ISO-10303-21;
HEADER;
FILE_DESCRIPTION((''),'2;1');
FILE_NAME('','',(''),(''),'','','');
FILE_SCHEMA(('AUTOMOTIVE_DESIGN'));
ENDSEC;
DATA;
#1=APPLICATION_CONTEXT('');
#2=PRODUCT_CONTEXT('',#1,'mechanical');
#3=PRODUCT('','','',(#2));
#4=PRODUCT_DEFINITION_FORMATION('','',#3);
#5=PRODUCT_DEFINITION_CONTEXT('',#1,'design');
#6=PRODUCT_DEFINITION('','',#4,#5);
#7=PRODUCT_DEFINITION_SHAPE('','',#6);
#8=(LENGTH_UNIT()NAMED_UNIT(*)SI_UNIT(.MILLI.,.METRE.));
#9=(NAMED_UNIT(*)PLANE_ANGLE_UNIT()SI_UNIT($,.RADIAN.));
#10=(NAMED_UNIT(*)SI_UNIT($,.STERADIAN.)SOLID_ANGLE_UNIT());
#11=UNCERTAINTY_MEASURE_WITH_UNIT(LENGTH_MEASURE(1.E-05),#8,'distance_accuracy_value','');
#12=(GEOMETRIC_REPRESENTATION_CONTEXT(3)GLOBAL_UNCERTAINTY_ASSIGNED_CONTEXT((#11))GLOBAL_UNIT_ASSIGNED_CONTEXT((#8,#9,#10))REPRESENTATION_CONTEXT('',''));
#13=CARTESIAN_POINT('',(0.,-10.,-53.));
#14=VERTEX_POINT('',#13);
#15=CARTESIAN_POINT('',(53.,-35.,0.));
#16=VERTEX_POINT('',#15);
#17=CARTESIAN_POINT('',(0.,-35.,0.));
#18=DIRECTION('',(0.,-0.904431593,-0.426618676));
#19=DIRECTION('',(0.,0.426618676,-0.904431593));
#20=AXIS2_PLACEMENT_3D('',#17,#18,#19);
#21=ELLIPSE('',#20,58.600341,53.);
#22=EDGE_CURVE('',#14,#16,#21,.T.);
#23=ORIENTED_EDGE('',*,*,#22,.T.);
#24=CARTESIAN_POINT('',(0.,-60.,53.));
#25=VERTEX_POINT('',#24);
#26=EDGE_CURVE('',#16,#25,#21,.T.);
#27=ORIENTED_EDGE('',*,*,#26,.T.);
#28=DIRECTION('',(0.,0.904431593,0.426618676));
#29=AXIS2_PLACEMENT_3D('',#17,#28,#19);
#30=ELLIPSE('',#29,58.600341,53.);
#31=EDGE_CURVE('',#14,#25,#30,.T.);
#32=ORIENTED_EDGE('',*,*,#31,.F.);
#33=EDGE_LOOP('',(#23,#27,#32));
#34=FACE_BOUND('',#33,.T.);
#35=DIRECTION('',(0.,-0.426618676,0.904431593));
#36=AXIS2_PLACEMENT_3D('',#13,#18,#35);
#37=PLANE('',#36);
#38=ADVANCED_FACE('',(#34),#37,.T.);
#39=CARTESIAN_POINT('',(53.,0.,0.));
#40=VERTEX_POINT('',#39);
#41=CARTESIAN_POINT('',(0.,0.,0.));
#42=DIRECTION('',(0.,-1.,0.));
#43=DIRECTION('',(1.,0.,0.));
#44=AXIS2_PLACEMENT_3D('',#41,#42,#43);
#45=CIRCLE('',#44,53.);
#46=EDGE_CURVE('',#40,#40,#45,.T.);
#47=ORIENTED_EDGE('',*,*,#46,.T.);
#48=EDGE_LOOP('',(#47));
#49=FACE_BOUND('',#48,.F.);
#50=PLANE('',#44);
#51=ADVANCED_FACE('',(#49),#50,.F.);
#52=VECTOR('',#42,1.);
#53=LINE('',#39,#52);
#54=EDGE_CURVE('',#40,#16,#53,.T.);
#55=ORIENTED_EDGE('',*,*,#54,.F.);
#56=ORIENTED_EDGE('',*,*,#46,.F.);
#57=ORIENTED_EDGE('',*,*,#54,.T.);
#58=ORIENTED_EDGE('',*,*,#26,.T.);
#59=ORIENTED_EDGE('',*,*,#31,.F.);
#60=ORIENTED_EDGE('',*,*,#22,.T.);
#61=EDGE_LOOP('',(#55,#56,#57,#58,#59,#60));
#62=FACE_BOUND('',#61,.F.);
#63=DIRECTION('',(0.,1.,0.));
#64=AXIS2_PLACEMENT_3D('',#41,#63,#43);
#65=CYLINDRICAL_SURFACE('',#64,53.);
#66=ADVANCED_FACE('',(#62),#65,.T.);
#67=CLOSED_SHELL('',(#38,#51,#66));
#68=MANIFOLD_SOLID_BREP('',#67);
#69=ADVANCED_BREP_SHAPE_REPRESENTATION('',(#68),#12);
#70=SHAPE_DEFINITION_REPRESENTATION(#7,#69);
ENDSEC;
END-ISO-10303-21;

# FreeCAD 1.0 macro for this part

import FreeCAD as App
import Part
import Sketcher
Q = App.Units.Quantity


def add_polygon(sketch, points):
    """Adds a closed chain of lines whose ends are joined by coincident constraints."""
    first, n = sketch.GeometryCount, len(points)
    for a, b in zip(points, points[1:] + points[:1]):
        sketch.addGeometry(Part.LineSegment(App.Vector(*a, 0), App.Vector(*b, 0)), False)
    for i in range(n):
        sketch.addConstraint(Sketcher.Constraint("Coincident", first + i, 2, first + (i + 1) % n, 1))

doc = App.newDocument("Part")
body = doc.addObject("PartDesign::Body", "Body")

# Sketch on XZ plane
sketch1 = doc.addObject("Sketcher::SketchObject", "Sketch")
body.addObject(sketch1)
sketch1.AttachmentSupport = (doc.XZ_Plane, [""])
sketch1.MapMode = "FlatFace"
sketch1.addGeometry(Part.Circle(App.Vector(0, 0, 0), App.Vector(0, 0, 1), 53), False)
sketch1.addConstraint([
    Sketcher.Constraint("Coincident", 0, 3, -1, 1),
    Sketcher.Constraint("Diameter", 0, Q("106 mm")),
])
pad1 = doc.addObject("PartDesign::Pad", "Pad")
body.addObject(pad1)
pad1.Profile = sketch1
pad1.Length = 60

# Sketch on YZ plane
sketch2 = doc.addObject("Sketcher::SketchObject", "Sketch001")
body.addObject(sketch2)
sketch2.AttachmentSupport = (doc.YZ_Plane, [""])
sketch2.MapMode = "FlatFace"
add_polygon(sketch2, [(-60, -53), (-10, -53), (-60, 53)])  # lines 0-2
sketch2.addConstraint([
    Sketcher.Constraint("Horizontal", 0),
    Sketcher.Constraint("Vertical", 2),
    Sketcher.Constraint("DistanceX", 0, 1, 0, 2, Q("50 mm")),
    Sketcher.Constraint("DistanceY", 2, 2, 2, 1, Q("106 mm")),
    Sketcher.Constraint("DistanceX", 0, 2, -1, 1, Q("10 mm")),
    Sketcher.Constraint("DistanceY", 0, 2, -1, 1, Q("53 mm")),
])
pocket1 = doc.addObject("PartDesign::Pocket", "Pocket")
body.addObject(pocket1)
pocket1.Profile = sketch2
pocket1.Type = "ThroughAll"
pocket1.Midplane = True

doc.recompute()
